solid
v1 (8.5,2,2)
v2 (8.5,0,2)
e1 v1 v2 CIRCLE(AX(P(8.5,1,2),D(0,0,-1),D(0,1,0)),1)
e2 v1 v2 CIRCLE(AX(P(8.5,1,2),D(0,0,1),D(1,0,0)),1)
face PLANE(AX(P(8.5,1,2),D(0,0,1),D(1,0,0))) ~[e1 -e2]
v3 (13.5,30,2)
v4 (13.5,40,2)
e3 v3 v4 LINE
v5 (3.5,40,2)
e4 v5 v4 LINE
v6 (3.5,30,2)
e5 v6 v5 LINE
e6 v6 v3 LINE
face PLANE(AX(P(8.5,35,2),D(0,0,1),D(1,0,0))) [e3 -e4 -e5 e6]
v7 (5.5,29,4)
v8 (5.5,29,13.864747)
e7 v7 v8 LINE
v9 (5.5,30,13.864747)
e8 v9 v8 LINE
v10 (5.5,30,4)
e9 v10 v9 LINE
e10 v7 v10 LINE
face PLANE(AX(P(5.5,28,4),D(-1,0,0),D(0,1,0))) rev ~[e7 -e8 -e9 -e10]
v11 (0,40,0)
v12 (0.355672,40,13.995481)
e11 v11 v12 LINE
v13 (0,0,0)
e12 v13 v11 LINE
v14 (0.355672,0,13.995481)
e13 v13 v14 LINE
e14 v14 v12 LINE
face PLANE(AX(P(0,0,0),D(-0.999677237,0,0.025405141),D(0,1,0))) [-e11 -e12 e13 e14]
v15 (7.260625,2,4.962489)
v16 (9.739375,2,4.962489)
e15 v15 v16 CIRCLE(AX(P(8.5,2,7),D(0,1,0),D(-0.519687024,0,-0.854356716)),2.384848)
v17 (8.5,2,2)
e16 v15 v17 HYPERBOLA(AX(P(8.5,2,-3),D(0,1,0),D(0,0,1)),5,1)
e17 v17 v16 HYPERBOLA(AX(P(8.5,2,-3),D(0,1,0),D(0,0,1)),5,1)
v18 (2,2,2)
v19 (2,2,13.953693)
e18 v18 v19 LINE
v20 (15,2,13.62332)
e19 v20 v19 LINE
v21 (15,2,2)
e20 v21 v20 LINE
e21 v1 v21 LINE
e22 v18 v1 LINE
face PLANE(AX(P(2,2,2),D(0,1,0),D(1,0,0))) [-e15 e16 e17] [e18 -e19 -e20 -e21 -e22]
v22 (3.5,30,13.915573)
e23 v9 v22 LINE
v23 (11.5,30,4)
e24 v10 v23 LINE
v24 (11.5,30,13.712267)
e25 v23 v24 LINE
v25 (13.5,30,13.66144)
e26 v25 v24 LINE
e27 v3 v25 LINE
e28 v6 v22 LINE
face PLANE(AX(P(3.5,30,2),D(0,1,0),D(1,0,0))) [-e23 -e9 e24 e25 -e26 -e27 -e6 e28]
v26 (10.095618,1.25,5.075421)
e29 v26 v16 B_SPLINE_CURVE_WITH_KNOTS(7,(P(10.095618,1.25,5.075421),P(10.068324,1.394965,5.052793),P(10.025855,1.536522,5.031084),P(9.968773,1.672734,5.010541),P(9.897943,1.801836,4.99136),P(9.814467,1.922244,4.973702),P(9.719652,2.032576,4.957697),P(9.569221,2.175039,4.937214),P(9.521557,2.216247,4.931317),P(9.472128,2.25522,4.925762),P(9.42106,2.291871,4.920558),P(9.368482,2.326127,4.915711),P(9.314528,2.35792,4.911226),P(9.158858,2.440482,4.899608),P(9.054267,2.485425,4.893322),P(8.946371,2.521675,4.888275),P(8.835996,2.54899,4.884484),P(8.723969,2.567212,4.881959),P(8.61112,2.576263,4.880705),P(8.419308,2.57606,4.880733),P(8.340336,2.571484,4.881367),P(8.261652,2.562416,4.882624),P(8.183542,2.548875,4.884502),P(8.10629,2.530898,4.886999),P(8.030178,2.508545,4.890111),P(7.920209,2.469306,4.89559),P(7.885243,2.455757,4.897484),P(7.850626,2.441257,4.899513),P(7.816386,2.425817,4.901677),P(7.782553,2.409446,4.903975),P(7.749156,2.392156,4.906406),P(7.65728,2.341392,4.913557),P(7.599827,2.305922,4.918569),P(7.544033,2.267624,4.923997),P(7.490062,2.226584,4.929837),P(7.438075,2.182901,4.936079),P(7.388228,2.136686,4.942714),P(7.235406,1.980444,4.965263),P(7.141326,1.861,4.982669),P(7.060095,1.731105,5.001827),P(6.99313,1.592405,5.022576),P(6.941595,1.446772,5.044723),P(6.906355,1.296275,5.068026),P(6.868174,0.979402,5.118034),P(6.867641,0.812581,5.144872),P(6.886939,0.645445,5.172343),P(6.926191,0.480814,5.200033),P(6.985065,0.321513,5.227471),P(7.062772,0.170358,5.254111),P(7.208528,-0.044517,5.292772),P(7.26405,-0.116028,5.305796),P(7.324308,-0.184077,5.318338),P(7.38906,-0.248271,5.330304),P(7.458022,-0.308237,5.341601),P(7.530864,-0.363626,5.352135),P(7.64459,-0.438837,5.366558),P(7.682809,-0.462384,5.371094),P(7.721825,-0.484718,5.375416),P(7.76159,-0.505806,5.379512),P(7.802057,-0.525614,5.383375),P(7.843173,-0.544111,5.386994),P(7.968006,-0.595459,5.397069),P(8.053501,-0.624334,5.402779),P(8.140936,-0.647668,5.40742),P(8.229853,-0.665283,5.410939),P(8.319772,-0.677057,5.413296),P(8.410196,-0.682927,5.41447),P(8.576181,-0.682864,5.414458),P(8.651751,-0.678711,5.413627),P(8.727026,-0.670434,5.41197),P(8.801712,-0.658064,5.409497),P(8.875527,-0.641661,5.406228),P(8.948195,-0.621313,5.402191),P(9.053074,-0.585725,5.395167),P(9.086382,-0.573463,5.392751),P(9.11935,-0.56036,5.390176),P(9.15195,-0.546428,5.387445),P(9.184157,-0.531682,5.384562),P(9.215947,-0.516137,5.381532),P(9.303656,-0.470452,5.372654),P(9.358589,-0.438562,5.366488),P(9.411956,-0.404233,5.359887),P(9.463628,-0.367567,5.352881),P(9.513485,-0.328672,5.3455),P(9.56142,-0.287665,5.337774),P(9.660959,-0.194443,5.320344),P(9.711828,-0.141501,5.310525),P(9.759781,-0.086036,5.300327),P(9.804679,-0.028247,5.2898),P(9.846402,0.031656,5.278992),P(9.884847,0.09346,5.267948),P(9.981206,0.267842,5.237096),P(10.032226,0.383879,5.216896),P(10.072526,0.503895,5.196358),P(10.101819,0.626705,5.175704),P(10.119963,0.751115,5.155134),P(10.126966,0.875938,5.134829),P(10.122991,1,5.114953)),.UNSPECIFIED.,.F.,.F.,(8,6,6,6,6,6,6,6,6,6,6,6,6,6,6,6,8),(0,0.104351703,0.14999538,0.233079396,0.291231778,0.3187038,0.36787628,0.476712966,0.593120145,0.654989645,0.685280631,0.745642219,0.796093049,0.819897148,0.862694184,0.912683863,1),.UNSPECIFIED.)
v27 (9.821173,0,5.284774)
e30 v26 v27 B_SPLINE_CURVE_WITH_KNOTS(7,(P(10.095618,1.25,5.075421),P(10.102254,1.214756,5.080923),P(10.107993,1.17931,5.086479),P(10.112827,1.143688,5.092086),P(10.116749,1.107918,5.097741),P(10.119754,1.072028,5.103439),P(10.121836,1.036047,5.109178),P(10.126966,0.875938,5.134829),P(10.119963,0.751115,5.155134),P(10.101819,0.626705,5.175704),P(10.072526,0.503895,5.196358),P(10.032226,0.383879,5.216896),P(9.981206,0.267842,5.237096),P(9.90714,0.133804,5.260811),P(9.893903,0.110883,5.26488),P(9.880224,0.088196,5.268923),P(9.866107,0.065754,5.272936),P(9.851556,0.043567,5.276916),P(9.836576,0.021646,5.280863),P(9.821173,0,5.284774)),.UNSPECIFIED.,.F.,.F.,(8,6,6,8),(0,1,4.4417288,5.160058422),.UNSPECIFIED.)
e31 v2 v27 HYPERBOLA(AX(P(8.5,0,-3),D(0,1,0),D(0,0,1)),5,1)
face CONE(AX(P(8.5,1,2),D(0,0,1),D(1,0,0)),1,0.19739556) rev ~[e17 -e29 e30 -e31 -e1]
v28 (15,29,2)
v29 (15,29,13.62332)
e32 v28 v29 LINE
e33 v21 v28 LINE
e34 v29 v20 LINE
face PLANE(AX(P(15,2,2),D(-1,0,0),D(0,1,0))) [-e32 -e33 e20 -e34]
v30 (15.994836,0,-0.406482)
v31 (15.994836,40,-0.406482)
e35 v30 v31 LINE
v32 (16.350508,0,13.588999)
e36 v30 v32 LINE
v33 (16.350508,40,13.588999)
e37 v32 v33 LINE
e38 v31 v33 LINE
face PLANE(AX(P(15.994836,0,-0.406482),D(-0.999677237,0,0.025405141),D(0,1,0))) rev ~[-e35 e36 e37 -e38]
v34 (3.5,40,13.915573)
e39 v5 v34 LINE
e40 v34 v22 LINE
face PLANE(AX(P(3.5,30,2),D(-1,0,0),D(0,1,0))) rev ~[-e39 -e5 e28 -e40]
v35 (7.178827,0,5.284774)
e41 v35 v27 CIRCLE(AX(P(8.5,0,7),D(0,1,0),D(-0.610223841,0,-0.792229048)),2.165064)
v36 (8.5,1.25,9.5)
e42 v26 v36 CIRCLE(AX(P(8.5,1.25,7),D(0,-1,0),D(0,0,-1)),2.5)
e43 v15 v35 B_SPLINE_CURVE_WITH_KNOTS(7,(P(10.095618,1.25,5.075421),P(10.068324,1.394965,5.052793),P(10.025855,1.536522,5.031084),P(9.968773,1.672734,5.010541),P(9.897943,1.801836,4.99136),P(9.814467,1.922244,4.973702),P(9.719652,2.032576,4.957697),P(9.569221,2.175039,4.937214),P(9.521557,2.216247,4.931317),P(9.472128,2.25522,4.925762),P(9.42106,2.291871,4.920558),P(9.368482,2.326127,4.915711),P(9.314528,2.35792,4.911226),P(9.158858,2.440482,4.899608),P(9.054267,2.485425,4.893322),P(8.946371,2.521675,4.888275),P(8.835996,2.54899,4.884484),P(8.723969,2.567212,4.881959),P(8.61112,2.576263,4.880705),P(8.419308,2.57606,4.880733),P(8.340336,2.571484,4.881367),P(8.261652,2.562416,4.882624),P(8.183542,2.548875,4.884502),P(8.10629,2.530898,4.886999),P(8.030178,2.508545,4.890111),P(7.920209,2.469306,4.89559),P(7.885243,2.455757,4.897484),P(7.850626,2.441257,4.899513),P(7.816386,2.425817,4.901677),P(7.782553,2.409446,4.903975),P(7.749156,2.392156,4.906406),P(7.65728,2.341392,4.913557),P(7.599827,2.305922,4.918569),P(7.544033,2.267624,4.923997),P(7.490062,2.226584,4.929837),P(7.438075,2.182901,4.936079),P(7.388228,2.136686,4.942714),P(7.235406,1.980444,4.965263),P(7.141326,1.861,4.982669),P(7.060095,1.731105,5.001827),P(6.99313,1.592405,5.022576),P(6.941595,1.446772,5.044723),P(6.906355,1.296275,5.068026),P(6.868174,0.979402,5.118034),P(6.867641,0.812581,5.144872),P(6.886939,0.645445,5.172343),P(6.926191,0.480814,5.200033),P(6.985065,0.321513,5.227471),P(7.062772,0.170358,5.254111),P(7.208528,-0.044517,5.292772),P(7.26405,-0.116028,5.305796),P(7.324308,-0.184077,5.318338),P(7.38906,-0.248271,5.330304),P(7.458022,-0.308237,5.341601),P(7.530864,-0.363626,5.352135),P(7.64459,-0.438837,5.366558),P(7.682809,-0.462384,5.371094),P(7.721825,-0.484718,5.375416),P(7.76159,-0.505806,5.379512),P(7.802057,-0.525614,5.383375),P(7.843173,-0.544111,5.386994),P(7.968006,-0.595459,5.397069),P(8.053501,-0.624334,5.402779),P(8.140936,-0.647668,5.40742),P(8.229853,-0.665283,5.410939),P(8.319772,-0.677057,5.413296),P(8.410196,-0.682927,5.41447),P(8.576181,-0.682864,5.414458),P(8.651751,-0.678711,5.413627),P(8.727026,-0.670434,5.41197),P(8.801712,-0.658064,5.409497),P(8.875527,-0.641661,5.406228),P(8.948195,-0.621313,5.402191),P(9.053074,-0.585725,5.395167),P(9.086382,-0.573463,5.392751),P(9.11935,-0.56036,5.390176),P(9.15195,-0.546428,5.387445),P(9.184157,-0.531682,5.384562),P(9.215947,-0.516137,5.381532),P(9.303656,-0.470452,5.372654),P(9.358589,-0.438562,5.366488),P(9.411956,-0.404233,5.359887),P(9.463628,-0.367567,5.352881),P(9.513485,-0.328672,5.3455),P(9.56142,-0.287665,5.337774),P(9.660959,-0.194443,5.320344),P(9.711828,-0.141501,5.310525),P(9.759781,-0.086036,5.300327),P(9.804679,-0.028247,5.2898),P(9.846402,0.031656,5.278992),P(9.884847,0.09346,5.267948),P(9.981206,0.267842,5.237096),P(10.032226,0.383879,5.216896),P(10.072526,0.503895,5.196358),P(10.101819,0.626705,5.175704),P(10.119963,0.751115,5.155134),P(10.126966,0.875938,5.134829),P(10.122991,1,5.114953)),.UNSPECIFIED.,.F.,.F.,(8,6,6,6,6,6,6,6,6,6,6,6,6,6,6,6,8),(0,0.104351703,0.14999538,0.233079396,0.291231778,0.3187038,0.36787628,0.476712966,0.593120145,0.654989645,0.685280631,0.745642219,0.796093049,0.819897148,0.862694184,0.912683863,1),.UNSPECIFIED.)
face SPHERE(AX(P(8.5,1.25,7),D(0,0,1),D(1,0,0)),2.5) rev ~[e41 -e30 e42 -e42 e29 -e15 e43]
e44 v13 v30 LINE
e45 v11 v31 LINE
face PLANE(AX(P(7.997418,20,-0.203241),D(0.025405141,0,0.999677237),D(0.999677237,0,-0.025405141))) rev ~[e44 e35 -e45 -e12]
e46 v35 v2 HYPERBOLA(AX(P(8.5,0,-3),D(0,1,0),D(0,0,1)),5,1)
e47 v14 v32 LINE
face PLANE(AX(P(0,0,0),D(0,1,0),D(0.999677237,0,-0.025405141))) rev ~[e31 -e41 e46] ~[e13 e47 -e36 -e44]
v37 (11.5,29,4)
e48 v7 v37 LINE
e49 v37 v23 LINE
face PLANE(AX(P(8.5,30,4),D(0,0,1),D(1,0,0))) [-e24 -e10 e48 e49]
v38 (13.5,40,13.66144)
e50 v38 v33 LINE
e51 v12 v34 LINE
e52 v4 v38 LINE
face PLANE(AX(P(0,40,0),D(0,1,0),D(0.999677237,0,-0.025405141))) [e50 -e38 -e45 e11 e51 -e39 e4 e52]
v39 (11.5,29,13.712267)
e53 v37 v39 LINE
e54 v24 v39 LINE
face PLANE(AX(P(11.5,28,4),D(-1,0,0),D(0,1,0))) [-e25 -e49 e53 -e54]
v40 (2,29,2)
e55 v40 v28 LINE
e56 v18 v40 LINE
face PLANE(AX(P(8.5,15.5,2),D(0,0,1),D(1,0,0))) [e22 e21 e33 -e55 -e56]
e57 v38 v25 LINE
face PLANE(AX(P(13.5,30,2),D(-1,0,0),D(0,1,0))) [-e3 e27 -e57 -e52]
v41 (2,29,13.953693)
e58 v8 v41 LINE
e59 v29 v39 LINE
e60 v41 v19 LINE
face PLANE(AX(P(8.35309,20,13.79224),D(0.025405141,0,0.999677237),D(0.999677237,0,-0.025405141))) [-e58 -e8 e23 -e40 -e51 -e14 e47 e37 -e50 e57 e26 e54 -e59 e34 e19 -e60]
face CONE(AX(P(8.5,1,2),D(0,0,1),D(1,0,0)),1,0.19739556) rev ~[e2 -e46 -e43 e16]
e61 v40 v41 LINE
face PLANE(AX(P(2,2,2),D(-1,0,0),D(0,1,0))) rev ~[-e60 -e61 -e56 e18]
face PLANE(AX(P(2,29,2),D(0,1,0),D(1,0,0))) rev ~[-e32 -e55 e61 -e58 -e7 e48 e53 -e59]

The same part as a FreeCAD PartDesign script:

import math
import FreeCAD as App
import Part
import Sketcher
from FreeCAD import Vector


def add_polygon(sketch, points):
    """Adds a closed chain of lines whose ends are joined by coincident constraints."""
    first, n = sketch.GeometryCount, len(points)
    for a, b in zip(points, points[1:] + points[:1]):
        sketch.addGeometry(Part.LineSegment(App.Vector(*a, 0), App.Vector(*b, 0)), False)
    for i in range(n):
        sketch.addConstraint(Sketcher.Constraint("Coincident", first + i, 2, first + (i + 1) % n, 1))

doc = App.newDocument("Part")
params = doc.addObject("Spreadsheet::Sheet", "Params")
for row, (alias, value) in enumerate([
    ("sketch1_width", "1 mm"),
    ("sketch1_width2", "2 mm"),
    ("sketch1_height", "5 mm"),
    ("revolution_angle", "360 deg"),
    ("sketch2_radius", "2.5 mm"),
    ("revolution2_angle", "360 deg"),
    ("sketch3_width", "6 mm"),
    ("sketch3_height", "4 mm"),
    ("pad1_length", "15 mm"),
    ("sketch4_width", "10 mm"),
    ("pad2_length", "15 mm"),
    ("sketch5_width", "13 mm"),
    ("sketch5_height", "27 mm"),
    ("pad3_length", "12 mm"),
    ("sketch6_width", "16 mm"),
    ("sketch6_height", "40 mm"),
    ("pad4_length", "14 mm"),
], start=1):
    params.set(f"A{row}", alias)
    params.set(f"B{row}", "=" + value)
    params.setAlias(f"B{row}", alias)

body = doc.addObject("PartDesign::Body", "Body")

# Sketch on XZ plane
sketch1 = body.newObject("Sketcher::SketchObject", "Sketch")
sketch1.AttachmentSupport = (doc.getObject("XZ_Plane"), [""])
sketch1.MapMode = "FlatFace"
sketch1.AttachmentOffset = App.Placement(Vector(0, 0, -1), App.Rotation())
add_polygon(sketch1, [(8.5, 2), (9.5, 2), (10.5, 7), (8.5, 7)])  # lines 0-3
sketch1.addGeometry(Part.LineSegment(Vector(8.5, 2, 0), Vector(8.5, 7, 0)), True)  # axis
sketch1.addConstraint(Sketcher.Constraint("Horizontal", 0))
sketch1.addConstraint(Sketcher.Constraint("Horizontal", 2))
sketch1.addConstraint(Sketcher.Constraint("Vertical", 3))
sketch1.addConstraint(Sketcher.Constraint("Vertical", 4))
sketch1.addConstraint(Sketcher.Constraint("Coincident", 4, 1, 3, 2))
sketch1.addConstraint(Sketcher.Constraint("Horizontal", 1, 2, 4, 2))
sketch1.addConstraint(Sketcher.Constraint("DistanceX", 0, 1, 0, 2, 1.0))
sketch1.addConstraint(Sketcher.Constraint("DistanceX", 2, 2, 2, 1, 2.0))
sketch1.addConstraint(Sketcher.Constraint("DistanceY", 3, 2, 3, 1, 5.0))
sketch1.addConstraint(Sketcher.Constraint("DistanceY", -1, 1, 0, 2, 2.0))
sketch1.addConstraint(Sketcher.Constraint("DistanceX", -1, 1, 0, 2, 9.5))
sketch1.setExpression("Constraints[10]", "Params.sketch1_width")
sketch1.setExpression("Constraints[11]", "Params.sketch1_width2")
sketch1.setExpression("Constraints[12]", "Params.sketch1_height")
revolution = body.newObject("PartDesign::Revolution", "Revolution")
revolution.Profile = sketch1
revolution.ReferenceAxis = (sketch1, ["Axis0"])
revolution.setExpression("Angle", "Params.revolution_angle")
body2 = doc.addObject("PartDesign::Body", "Body001")

# Sketch on XZ plane
sketch2 = body2.newObject("Sketcher::SketchObject", "Sketch001")
sketch2.AttachmentSupport = (doc.getObject("XZ_Plane001"), [""])
sketch2.MapMode = "FlatFace"
sketch2.AttachmentOffset = App.Placement(Vector(0, 0, -1.25), App.Rotation())
sketch2.addGeometry(Part.ArcOfCircle(Part.Circle(Vector(8.5, 7, 0), Vector(0, 0, 1), 2.5), math.radians(-90), math.radians(90)), False)
sketch2.addGeometry(Part.LineSegment(Vector(8.5, 9.5, 0), Vector(8.5, 4.5, 0)), False)
sketch2.addGeometry(Part.LineSegment(Vector(8.5, 4.5, 0), Vector(8.5, 9.5, 0)), True)  # axis
sketch2.addConstraint(Sketcher.Constraint("Coincident", 0, 1, 1, 2))
sketch2.addConstraint(Sketcher.Constraint("Coincident", 1, 1, 0, 2))
sketch2.addConstraint(Sketcher.Constraint("Vertical", 1))
sketch2.addConstraint(Sketcher.Constraint("Vertical", 2))
sketch2.addConstraint(Sketcher.Constraint("Coincident", 2, 1, 0, 1))
sketch2.addConstraint(Sketcher.Constraint("Equal", 1, 2))
sketch2.addConstraint(Sketcher.Constraint("Radius", 0, 2.5))
sketch2.addConstraint(Sketcher.Constraint("DistanceY", -1, 1, 0, 3, 7.0))
sketch2.addConstraint(Sketcher.Constraint("DistanceX", -1, 1, 0, 3, 8.5))
sketch2.addConstraint(Sketcher.Constraint("DistanceX", -1, 1, 0, 1, 8.5))
sketch2.setExpression("Constraints[6]", "Params.sketch2_radius")
revolution2 = body2.newObject("PartDesign::Revolution", "Revolution001")
revolution2.Profile = sketch2
revolution2.ReferenceAxis = (sketch2, ["Axis0"])
revolution2.setExpression("Angle", "Params.revolution2_angle")
body3 = doc.addObject("PartDesign::Body", "Body002")

# Sketch on XY plane
sketch3 = body3.newObject("Sketcher::SketchObject", "Sketch002")
sketch3.AttachmentSupport = (doc.getObject("XY_Plane002"), [""])
sketch3.MapMode = "FlatFace"
sketch3.AttachmentOffset = App.Placement(Vector(0, 0, 4), App.Rotation())
add_polygon(sketch3, [(5.5, 32), (5.5, 28), (11.5, 28), (11.5, 32)])  # lines 0-3
sketch3.addConstraint(Sketcher.Constraint("Vertical", 0))
sketch3.addConstraint(Sketcher.Constraint("Horizontal", 1))
sketch3.addConstraint(Sketcher.Constraint("Vertical", 2))
sketch3.addConstraint(Sketcher.Constraint("Horizontal", 3))
sketch3.addConstraint(Sketcher.Constraint("DistanceX", 1, 1, 1, 2, 6.0))
sketch3.addConstraint(Sketcher.Constraint("DistanceY", 0, 2, 0, 1, 4.0))
sketch3.addConstraint(Sketcher.Constraint("DistanceY", -1, 1, 0, 2, 28.0))
sketch3.addConstraint(Sketcher.Constraint("DistanceX", -1, 1, 0, 2, 5.5))
sketch3.setExpression("Constraints[8]", "Params.sketch3_width")
sketch3.setExpression("Constraints[9]", "Params.sketch3_height")
pad1 = body3.newObject("PartDesign::Pad", "Pad")
pad1.Profile = sketch3
pad1.setExpression("Length", "Params.pad1_length")
body4 = doc.addObject("PartDesign::Body", "Body003")

# Sketch on XY plane
sketch4 = body4.newObject("Sketcher::SketchObject", "Sketch003")
sketch4.AttachmentSupport = (doc.getObject("XY_Plane003"), [""])
sketch4.MapMode = "FlatFace"
sketch4.AttachmentOffset = App.Placement(Vector(0, 0, 2), App.Rotation())
add_polygon(sketch4, [(4, 40), (4, 30), (14, 30), (14, 40)])  # lines 0-3
sketch4.addConstraint(Sketcher.Constraint("Vertical", 0))
sketch4.addConstraint(Sketcher.Constraint("Horizontal", 1))
sketch4.addConstraint(Sketcher.Constraint("Vertical", 2))
sketch4.addConstraint(Sketcher.Constraint("Horizontal", 3))
sketch4.addConstraint(Sketcher.Constraint("Equal", 3, 0))
sketch4.addConstraint(Sketcher.Constraint("DistanceX", 1, 1, 1, 2, 10.0))
sketch4.addConstraint(Sketcher.Constraint("DistanceY", -1, 1, 0, 2, 30.0))
sketch4.addConstraint(Sketcher.Constraint("DistanceX", -1, 1, 0, 2, 3.5))
sketch4.setExpression("Constraints[9]", "Params.sketch4_width")
pad2 = body4.newObject("PartDesign::Pad", "Pad001")
pad2.Profile = sketch4
pad2.setExpression("Length", "Params.pad2_length")
body5 = doc.addObject("PartDesign::Body", "Body004")

# Sketch on XY plane
sketch5 = body5.newObject("Sketcher::SketchObject", "Sketch004")
sketch5.AttachmentSupport = (doc.getObject("XY_Plane004"), [""])
sketch5.MapMode = "FlatFace"
sketch5.AttachmentOffset = App.Placement(Vector(0, 0, 2), App.Rotation())
add_polygon(sketch5, [(2, 29), (2, 2), (15, 2), (15, 29)])  # lines 0-3
sketch5.addConstraint(Sketcher.Constraint("Vertical", 0))
sketch5.addConstraint(Sketcher.Constraint("Horizontal", 1))
sketch5.addConstraint(Sketcher.Constraint("Vertical", 2))
sketch5.addConstraint(Sketcher.Constraint("Horizontal", 3))
sketch5.addConstraint(Sketcher.Constraint("DistanceX", 1, 1, 1, 2, 13.0))
sketch5.addConstraint(Sketcher.Constraint("DistanceY", 0, 2, 0, 1, 27.0))
sketch5.addConstraint(Sketcher.Constraint("DistanceX", -1, 1, 0, 2, 2.0))
sketch5.addConstraint(Sketcher.Constraint("DistanceY", -1, 1, 0, 2, 2.0))
sketch5.setExpression("Constraints[8]", "Params.sketch5_width")
sketch5.setExpression("Constraints[9]", "Params.sketch5_height")
pad3 = body5.newObject("PartDesign::Pad", "Pad002")
pad3.Profile = sketch5
pad3.setExpression("Length", "Params.pad3_length")
body6 = doc.addObject("PartDesign::Body", "Body005")

# Sketch on XY plane
sketch6 = body6.newObject("Sketcher::SketchObject", "Sketch005")
sketch6.AttachmentSupport = (doc.getObject("XY_Plane005"), [""])
sketch6.MapMode = "FlatFace"
add_polygon(sketch6, [(0, 40), (0, 0), (16, 0), (16, 40)])  # lines 0-3
sketch6.addConstraint(Sketcher.Constraint("Vertical", 0))
sketch6.addConstraint(Sketcher.Constraint("Horizontal", 1))
sketch6.addConstraint(Sketcher.Constraint("Vertical", 2))
sketch6.addConstraint(Sketcher.Constraint("Horizontal", 3))
sketch6.addConstraint(Sketcher.Constraint("Coincident", 0, 2, -1, 1))
sketch6.addConstraint(Sketcher.Constraint("DistanceX", 1, 1, 1, 2, 16.0))
sketch6.addConstraint(Sketcher.Constraint("DistanceY", 0, 2, 0, 1, 40.0))
sketch6.setExpression("Constraints[9]", "Params.sketch6_width")
sketch6.setExpression("Constraints[10]", "Params.sketch6_height")
pad4 = body6.newObject("PartDesign::Pad", "Pad003")
pad4.Profile = sketch6
pad4.setExpression("Length", "Params.pad4_length")
body7 = doc.addObject("PartDesign::Body", "Body006")
doc.recompute()

body6.Placement = App.Placement(Vector(0, 0, 0), App.Rotation(Vector(0, 1, 0), 1.455764))
boolean = body7.newObject("PartDesign::Boolean", "Boolean")
boolean.Type = "Fuse"
boolean.addObjects([body6])
doc.recompute()

boolean2 = body7.newObject("PartDesign::Boolean", "Boolean001")
boolean2.Type = "Cut"
boolean2.addObjects([body5])
doc.recompute()

boolean3 = body7.newObject("PartDesign::Boolean", "Boolean002")
boolean3.Type = "Cut"
boolean3.addObjects([body4])
doc.recompute()

boolean4 = body7.newObject("PartDesign::Boolean", "Boolean003")
boolean4.Type = "Cut"
boolean4.addObjects([body3])
doc.recompute()

boolean5 = body7.newObject("PartDesign::Boolean", "Boolean004")
boolean5.Type = "Cut"
boolean5.addObjects([body2])
doc.recompute()

boolean6 = body7.newObject("PartDesign::Boolean", "Boolean005")
boolean6.Type = "Cut"
boolean6.addObjects([body])

doc.recompute()
